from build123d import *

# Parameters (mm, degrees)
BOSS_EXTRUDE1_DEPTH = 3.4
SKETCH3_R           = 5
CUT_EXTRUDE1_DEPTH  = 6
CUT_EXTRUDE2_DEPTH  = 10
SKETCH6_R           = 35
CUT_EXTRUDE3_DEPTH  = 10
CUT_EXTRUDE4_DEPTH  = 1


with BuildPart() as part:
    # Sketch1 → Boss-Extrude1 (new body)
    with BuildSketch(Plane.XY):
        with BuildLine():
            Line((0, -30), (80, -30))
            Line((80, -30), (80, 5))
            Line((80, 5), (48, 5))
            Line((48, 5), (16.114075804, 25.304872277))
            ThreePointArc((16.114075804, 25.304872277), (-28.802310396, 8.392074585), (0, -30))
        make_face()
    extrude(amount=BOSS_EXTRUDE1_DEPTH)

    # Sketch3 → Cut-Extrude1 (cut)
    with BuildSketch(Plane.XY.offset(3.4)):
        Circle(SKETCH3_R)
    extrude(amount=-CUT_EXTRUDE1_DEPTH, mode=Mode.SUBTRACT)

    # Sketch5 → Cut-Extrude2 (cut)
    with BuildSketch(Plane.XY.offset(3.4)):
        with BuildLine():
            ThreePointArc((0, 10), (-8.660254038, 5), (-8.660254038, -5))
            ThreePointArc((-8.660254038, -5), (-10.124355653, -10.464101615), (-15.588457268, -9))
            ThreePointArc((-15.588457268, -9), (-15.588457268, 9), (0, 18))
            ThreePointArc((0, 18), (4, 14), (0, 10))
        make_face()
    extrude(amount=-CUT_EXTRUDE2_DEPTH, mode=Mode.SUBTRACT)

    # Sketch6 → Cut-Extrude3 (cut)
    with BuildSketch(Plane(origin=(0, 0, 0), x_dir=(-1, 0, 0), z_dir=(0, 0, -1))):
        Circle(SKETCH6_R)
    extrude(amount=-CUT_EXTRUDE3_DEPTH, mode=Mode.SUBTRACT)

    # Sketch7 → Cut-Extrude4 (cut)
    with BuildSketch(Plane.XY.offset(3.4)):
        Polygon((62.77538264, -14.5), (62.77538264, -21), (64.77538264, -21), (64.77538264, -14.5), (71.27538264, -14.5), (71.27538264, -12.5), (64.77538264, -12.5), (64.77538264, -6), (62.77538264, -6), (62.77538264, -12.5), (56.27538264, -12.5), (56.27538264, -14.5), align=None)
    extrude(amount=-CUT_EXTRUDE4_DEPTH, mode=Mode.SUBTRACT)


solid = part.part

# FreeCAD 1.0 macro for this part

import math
import FreeCAD as App
import Part
import Sketcher

V = App.Vector
Q = App.Units.Quantity


def add_polygon(sketch, points):
    """Adds a closed chain of lines whose ends are joined by coincident constraints."""
    first, n = sketch.GeometryCount, len(points)
    for a, b in zip(points, points[1:] + points[:1]):
        sketch.addGeometry(Part.LineSegment(App.Vector(*a, 0), App.Vector(*b, 0)), False)
    for i in range(n):
        sketch.addConstraint(Sketcher.Constraint("Coincident", first + i, 2, first + (i + 1) % n, 1))

doc = App.newDocument("Part")
body = doc.addObject("PartDesign::Body", "Body")

# Sketch on XY plane
sketch1 = doc.addObject("Sketcher::SketchObject", "Sketch")
body.addObject(sketch1)
sketch1.AttachmentSupport = (doc.XY_Plane, [""])
sketch1.MapMode = "FlatFace"
sketch1.addGeometry([
    Part.LineSegment(V(0, -30, 0), V(80, -30, 0)),  # 0
    Part.LineSegment(V(80, -30, 0), V(80, 5, 0)),  # 1
    Part.LineSegment(V(80, 5, 0), V(48, 5, 0)),  # 2
    Part.LineSegment(V(48, 5, 0), V(16.114076, 25.304872, 0)),  # 3
    Part.ArcOfCircle(Part.Circle(V(0, 0, 0), V(0, 0, 1), 30), math.radians(57.511124), math.radians(270)),  # 4
], False)
sketch1.addConstraint([
    Sketcher.Constraint("Coincident", 0, 2, 1, 1),
    Sketcher.Constraint("Coincident", 1, 2, 2, 1),
    Sketcher.Constraint("Coincident", 2, 2, 3, 1),
    Sketcher.Constraint("Tangent", 3, 2, 4, 1),
    Sketcher.Constraint("Tangent", 4, 2, 0, 1),
    Sketcher.Constraint("Horizontal", 0),
    Sketcher.Constraint("Vertical", 1),
    Sketcher.Constraint("Horizontal", 2),
    Sketcher.Constraint("Coincident", 4, 3, -1, 1),
    Sketcher.Constraint("Radius", 4, Q("30 mm")),
    Sketcher.Constraint("DistanceX", 0, 1, 0, 2, Q("80 mm")),
    Sketcher.Constraint("DistanceX", 2, 2, 2, 1, Q("32 mm")),
    Sketcher.Constraint("DistanceY", 1, 1, 1, 2, Q("35 mm")),
])
pad1 = doc.addObject("PartDesign::Pad", "Pad")
body.addObject(pad1)
pad1.Profile = sketch1
pad1.Length = 3.4

# Sketch on XY plane
sketch2 = doc.addObject("Sketcher::SketchObject", "Sketch001")
body.addObject(sketch2)
sketch2.AttachmentSupport = (doc.XY_Plane, [""])
sketch2.MapMode = "FlatFace"
sketch2.AttachmentOffset = App.Placement(V(0, 0, 3.4), App.Rotation())
sketch2.addGeometry(Part.Circle(V(0, 0, 0), V(0, 0, 1), 5), False)
sketch2.addConstraint([
    Sketcher.Constraint("Coincident", 0, 3, -1, 1),
    Sketcher.Constraint("Diameter", 0, Q("10 mm")),
])
pocket1 = doc.addObject("PartDesign::Pocket", "Pocket")
body.addObject(pocket1)
pocket1.Profile = sketch2
pocket1.Length = 6

# Sketch on XY plane
sketch3 = doc.addObject("Sketcher::SketchObject", "Sketch002")
body.addObject(sketch3)
sketch3.AttachmentSupport = (doc.XY_Plane, [""])
sketch3.MapMode = "FlatFace"
sketch3.AttachmentOffset = App.Placement(V(0, 0, 3.4), App.Rotation())
sketch3.addGeometry([
    Part.ArcOfCircle(Part.Circle(V(0, 0, 0), V(0, 0, 1), 10), math.radians(90), math.radians(210)),
    Part.ArcOfCircle(Part.Circle(V(0, 14, 0), V(0, 0, 1), 4), math.radians(-90), math.radians(90)),
    Part.ArcOfCircle(Part.Circle(V(0, 0, 0), V(0, 0, 1), 18), math.radians(90), math.radians(210)),
    Part.ArcOfCircle(Part.Circle(V(-12.124356, -7, 0), V(0, 0, 1), 4), math.radians(-150), math.radians(30)),
], False)
sketch3.addConstraint([
    Sketcher.Constraint("Tangent", 0, 1, 1, 1),
    Sketcher.Constraint("Tangent", 1, 2, 2, 1),
    Sketcher.Constraint("Tangent", 2, 2, 3, 1),
    Sketcher.Constraint("Tangent", 3, 2, 0, 2),
    Sketcher.Constraint("Coincident", 0, 3, -1, 1),
    Sketcher.Constraint("Coincident", 2, 3, -1, 1),
    Sketcher.Constraint("PointOnObject", 1, 3, -2),
    Sketcher.Constraint("Radius", 0, Q("10 mm")),
    Sketcher.Constraint("Radius", 1, Q("4 mm")),
    Sketcher.Constraint("DistanceY", 3, 3, -1, 1, Q("7 mm")),
])
pocket2 = doc.addObject("PartDesign::Pocket", "Pocket001")
body.addObject(pocket2)
pocket2.Profile = sketch3
pocket2.Length = 10

# Sketch on XY plane
sketch4 = doc.addObject("Sketcher::SketchObject", "Sketch003")
body.addObject(sketch4)
sketch4.AttachmentSupport = (doc.XY_Plane, [""])
sketch4.MapMode = "FlatFace"
sketch4.addGeometry(Part.Circle(V(0, 0, 0), V(0, 0, 1), 35), False)
sketch4.addConstraint([
    Sketcher.Constraint("Coincident", 0, 3, -1, 1),
    Sketcher.Constraint("Diameter", 0, Q("70 mm")),
])
pocket3 = doc.addObject("PartDesign::Pocket", "Pocket002")
body.addObject(pocket3)
pocket3.Profile = sketch4
pocket3.Length = 10
pocket3.Reversed = True

# Sketch on XY plane
sketch5 = doc.addObject("Sketcher::SketchObject", "Sketch004")
body.addObject(sketch5)
sketch5.AttachmentSupport = (doc.XY_Plane, [""])
sketch5.MapMode = "FlatFace"
sketch5.AttachmentOffset = App.Placement(V(0, 0, 3.4), App.Rotation())
add_polygon(sketch5, [(62.775383, -14.5), (62.775383, -21), (64.775383, -21), (64.775383, -14.5), (71.275383, -14.5), (71.275383, -12.5), (64.775383, -12.5), (64.775383, -6), (62.775383, -6), (62.775383, -12.5), (56.275383, -12.5), (56.275383, -14.5)])  # lines 0-11
sketch5.addConstraint([
    Sketcher.Constraint("Vertical", 0),
    Sketcher.Constraint("Horizontal", 1),
    Sketcher.Constraint("Vertical", 2),
    Sketcher.Constraint("Horizontal", 3),
    Sketcher.Constraint("Vertical", 4),
    Sketcher.Constraint("Horizontal", 5),
    Sketcher.Constraint("Vertical", 6),
    Sketcher.Constraint("Horizontal", 7),
    Sketcher.Constraint("Vertical", 8),
    Sketcher.Constraint("Horizontal", 9),
    Sketcher.Constraint("Vertical", 10),
    Sketcher.Constraint("Horizontal", 11),
    Sketcher.Constraint("Horizontal", 5, 2, 8, 2),
    Sketcher.Constraint("Horizontal", 3, 2, 10, 2),
    Sketcher.Constraint("Vertical", 2, 2, 5, 2),
    Sketcher.Constraint("Vertical", 0, 2, 7, 2),
    Sketcher.Constraint("Equal", 5, 9),
    Sketcher.Constraint("Equal", 11, 0),
    Sketcher.Constraint("Equal", 7, 4),
    Sketcher.Constraint("Equal", 2, 6),
    Sketcher.Constraint("DistanceX", 1, 1, 1, 2, Q("2 mm")),
    Sketcher.Constraint("DistanceX", 3, 1, 3, 2, Q("6.5 mm")),
    Sketcher.Constraint("DistanceY", 0, 2, -1, 1, Q("21 mm")),
    Sketcher.Constraint("DistanceX", -1, 1, 0, 2, Q("62.775383 mm")),
])
pocket4 = doc.addObject("PartDesign::Pocket", "Pocket003")
body.addObject(pocket4)
pocket4.Profile = sketch5
pocket4.Length = 1

doc.recompute()
